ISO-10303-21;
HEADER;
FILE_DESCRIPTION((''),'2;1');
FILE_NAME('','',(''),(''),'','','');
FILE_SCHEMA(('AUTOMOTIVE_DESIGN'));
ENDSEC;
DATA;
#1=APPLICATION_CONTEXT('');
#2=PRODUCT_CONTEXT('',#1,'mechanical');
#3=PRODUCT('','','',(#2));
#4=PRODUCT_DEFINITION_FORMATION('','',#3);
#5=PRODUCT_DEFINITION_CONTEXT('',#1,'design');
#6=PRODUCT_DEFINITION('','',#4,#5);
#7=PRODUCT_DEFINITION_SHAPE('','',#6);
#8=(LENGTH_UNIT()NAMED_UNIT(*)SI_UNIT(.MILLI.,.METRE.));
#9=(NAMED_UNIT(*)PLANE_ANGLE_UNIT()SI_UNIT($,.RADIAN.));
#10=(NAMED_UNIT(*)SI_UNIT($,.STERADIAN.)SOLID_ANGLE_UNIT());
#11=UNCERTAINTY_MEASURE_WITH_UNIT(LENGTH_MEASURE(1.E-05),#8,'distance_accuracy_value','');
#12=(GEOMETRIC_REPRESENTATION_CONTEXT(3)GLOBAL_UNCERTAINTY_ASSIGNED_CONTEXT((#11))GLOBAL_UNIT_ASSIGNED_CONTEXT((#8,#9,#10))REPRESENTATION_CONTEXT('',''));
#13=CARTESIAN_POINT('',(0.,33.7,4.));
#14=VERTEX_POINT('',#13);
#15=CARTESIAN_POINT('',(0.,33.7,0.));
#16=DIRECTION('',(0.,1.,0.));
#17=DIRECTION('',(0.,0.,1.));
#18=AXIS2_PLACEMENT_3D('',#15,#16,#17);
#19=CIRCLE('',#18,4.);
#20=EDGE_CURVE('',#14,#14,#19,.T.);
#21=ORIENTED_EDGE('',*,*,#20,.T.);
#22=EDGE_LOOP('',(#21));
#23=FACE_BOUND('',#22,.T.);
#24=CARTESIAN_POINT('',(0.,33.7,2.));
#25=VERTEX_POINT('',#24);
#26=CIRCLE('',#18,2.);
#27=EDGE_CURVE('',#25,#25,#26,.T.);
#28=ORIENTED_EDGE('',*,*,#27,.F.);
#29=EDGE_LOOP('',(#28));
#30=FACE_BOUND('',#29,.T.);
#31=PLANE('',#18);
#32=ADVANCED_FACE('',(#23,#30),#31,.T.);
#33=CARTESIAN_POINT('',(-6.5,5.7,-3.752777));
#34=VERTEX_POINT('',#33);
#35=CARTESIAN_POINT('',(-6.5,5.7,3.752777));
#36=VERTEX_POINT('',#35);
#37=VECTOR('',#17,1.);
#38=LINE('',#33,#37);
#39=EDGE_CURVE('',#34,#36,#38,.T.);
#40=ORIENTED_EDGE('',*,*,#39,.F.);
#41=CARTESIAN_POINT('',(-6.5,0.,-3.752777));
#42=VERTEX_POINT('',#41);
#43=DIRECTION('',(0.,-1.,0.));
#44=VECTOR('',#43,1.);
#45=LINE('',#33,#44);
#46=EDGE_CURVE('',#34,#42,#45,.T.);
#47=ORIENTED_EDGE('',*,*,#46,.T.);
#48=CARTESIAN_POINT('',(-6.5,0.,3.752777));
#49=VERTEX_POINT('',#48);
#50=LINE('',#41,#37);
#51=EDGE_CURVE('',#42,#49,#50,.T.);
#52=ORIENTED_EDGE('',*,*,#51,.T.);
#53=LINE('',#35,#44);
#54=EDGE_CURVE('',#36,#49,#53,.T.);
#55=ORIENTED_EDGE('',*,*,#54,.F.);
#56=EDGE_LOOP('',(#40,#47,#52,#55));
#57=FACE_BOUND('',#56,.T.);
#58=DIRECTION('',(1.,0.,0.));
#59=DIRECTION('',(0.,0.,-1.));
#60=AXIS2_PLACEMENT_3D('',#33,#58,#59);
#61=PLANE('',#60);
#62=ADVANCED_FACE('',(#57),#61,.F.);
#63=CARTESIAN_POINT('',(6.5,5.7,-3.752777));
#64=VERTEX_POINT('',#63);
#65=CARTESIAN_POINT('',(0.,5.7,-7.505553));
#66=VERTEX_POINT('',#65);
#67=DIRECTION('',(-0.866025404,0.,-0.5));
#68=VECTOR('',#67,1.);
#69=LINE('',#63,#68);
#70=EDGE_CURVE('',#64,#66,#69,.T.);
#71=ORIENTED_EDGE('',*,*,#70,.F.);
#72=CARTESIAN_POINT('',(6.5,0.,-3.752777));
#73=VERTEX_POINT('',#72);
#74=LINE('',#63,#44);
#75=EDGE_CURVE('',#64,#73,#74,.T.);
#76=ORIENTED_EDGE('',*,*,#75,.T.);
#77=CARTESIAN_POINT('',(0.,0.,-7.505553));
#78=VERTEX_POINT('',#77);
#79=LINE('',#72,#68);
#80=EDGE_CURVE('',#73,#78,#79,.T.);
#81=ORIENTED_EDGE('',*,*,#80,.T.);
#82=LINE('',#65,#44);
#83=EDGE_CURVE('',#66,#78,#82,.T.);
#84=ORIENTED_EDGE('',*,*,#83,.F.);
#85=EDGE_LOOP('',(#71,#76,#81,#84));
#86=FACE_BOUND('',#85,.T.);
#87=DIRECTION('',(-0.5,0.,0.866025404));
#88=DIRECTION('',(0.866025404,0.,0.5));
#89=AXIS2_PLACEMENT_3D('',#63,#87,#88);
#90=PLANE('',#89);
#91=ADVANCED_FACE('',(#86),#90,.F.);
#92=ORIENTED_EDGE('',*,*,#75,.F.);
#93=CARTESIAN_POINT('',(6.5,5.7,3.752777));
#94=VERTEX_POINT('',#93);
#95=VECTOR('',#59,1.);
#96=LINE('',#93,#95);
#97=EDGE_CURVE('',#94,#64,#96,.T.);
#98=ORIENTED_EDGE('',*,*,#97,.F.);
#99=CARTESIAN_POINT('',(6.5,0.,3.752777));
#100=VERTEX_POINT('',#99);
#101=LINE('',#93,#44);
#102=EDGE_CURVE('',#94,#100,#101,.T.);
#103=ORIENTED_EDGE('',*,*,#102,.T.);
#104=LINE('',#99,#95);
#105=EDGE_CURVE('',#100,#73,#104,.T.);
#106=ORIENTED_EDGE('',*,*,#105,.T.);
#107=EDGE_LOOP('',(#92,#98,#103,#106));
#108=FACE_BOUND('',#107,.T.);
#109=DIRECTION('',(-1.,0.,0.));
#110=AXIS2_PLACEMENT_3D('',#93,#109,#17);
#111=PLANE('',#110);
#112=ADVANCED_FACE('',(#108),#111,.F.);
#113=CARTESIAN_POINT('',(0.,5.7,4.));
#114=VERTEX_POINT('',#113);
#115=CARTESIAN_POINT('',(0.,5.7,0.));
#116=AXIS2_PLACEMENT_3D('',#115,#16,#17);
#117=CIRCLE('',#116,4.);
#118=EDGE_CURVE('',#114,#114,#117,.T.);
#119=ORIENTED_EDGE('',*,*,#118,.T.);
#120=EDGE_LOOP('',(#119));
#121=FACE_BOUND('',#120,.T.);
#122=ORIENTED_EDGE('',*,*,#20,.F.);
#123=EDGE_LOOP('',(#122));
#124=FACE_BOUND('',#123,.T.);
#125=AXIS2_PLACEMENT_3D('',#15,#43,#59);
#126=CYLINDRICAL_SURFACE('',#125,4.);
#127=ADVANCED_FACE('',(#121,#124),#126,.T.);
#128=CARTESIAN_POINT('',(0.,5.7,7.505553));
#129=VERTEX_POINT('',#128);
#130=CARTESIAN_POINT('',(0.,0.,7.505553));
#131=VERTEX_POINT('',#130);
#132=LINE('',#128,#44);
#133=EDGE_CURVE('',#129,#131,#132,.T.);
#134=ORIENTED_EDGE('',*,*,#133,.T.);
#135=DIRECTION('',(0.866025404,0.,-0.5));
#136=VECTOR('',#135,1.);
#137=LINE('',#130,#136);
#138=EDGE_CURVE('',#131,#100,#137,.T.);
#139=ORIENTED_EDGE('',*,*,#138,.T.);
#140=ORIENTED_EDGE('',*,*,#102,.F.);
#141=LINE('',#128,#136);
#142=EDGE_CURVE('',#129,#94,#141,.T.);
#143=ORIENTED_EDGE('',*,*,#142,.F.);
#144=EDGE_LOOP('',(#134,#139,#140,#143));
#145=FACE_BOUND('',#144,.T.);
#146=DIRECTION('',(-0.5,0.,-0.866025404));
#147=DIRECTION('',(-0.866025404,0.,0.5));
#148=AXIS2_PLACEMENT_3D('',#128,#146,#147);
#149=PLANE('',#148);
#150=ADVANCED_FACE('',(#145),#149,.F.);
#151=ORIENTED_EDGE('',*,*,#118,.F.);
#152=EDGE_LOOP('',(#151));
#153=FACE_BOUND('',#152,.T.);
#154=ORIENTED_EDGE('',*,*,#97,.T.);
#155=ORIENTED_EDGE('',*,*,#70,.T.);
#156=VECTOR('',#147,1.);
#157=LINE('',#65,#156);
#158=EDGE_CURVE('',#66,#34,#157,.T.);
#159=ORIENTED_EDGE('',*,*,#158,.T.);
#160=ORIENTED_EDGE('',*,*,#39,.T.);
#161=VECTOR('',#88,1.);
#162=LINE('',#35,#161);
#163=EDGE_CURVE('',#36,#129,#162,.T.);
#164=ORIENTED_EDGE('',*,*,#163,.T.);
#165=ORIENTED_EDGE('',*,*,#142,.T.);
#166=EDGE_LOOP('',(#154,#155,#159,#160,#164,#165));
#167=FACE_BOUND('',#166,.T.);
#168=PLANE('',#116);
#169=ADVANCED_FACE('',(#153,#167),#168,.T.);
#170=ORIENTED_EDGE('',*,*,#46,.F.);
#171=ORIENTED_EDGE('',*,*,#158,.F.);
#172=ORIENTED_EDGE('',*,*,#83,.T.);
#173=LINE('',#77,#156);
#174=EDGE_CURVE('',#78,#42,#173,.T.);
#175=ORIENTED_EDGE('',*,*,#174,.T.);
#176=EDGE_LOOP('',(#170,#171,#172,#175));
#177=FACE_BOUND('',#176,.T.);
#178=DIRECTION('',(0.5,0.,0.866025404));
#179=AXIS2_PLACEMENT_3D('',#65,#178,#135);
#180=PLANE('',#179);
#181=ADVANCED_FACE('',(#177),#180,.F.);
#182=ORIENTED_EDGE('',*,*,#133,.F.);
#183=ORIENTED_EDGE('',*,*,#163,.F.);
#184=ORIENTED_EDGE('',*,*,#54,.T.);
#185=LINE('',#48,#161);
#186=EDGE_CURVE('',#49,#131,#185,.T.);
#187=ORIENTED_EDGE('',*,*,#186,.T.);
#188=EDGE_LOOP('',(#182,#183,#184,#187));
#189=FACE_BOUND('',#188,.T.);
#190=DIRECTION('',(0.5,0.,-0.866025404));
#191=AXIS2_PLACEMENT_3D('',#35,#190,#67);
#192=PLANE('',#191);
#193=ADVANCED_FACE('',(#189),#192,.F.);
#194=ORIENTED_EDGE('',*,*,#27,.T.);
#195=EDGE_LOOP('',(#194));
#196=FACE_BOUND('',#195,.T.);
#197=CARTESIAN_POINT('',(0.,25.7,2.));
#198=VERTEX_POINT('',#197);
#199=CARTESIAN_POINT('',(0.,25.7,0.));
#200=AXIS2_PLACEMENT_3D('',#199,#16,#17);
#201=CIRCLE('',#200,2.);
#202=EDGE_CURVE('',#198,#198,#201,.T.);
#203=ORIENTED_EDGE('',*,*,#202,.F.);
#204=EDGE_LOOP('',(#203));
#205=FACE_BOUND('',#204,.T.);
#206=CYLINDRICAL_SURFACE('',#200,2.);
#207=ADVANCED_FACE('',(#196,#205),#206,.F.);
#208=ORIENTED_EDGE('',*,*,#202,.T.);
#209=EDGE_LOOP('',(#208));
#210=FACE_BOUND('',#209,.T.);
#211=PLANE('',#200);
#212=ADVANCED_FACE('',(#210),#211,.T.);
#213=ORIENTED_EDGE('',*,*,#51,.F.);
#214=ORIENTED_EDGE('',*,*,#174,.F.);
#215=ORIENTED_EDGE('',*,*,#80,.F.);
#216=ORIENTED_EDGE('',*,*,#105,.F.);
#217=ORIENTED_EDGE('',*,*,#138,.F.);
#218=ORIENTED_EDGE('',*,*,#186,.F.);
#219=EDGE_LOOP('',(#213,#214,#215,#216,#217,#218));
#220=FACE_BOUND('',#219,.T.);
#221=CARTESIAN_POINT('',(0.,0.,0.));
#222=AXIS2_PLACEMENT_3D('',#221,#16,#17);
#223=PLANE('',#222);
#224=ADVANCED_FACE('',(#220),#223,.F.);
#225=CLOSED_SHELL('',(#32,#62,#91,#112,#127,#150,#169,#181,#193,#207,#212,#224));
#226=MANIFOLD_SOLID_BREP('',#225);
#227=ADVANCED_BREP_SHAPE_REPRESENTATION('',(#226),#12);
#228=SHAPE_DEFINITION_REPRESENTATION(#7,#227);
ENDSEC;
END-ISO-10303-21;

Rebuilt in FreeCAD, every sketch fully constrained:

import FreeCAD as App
import Part
import Sketcher

V = App.Vector
Q = App.Units.Quantity


def add_polygon(sketch, points):
    """Adds a closed chain of lines whose ends are joined by coincident constraints."""
    first, n = sketch.GeometryCount, len(points)
    for a, b in zip(points, points[1:] + points[:1]):
        sketch.addGeometry(Part.LineSegment(App.Vector(*a, 0), App.Vector(*b, 0)), False)
    for i in range(n):
        sketch.addConstraint(Sketcher.Constraint("Coincident", first + i, 2, first + (i + 1) % n, 1))

doc = App.newDocument("Part")
body = doc.addObject("PartDesign::Body", "Body")

sketch1 = body.newObject("Sketcher::SketchObject", "Sketch")
sketch1.AttachmentSupport = (doc.getObject("XZ_Plane"), [""])
sketch1.MapMode = "FlatFace"
add_polygon(sketch1, [(0, 8), (6, 4), (6, -4), (0, -8), (-6, -4), (-6, 4)])
sketch1.addConstraint(Sketcher.Constraint("Vertical", 1))
sketch1.addConstraint(Sketcher.Constraint("Vertical", 4))
sketch1.addConstraint(Sketcher.Constraint("Symmetric", 0, 2, 3, 2, -1, 1))
sketch1.addConstraint(Sketcher.Constraint("Symmetric", 2, 2, 5, 2, -1, 1))
sketch1.addConstraint(Sketcher.Constraint("PointOnObject", 2, 2, -2))
sketch1.addConstraint(Sketcher.Constraint("Parallel", 2, 5))
sketch1.addConstraint(Sketcher.Constraint("Horizontal", 1, 2, 3, 2))
sketch1.addConstraint(Sketcher.Constraint("Angle", 0, Q("-30 deg")))
sketch1.addConstraint(Sketcher.Constraint("DistanceX", 3, 2, 1, 2, 13.0))
sketch1.addConstraint(Sketcher.Constraint("DistanceY", 1, 2, 1, 1, 7.505554))
pad1 = body.newObject("PartDesign::Pad", "Pad")
pad1.Profile = sketch1
pad1.Length = 5.7
pad1.Reversed = True

sketch2 = body.newObject("Sketcher::SketchObject", "Sketch001")
sketch2.AttachmentSupport = (doc.getObject("XZ_Plane"), [""])
sketch2.MapMode = "FlatFace"
sketch2.AttachmentOffset = App.Placement(V(0, 0, -5.7), App.Rotation())
sketch2.addGeometry(Part.Circle(V(0, 0, 0), V(0, 0, 1), 4), False)
sketch2.addConstraint(Sketcher.Constraint("Coincident", 0, 3, -1, 1))
sketch2.addConstraint(Sketcher.Constraint("Diameter", 0, 8.0))
pad2 = body.newObject("PartDesign::Pad", "Pad001")
pad2.Profile = sketch2
pad2.Length = 28
pad2.Reversed = True

sketch3 = body.newObject("Sketcher::SketchObject", "Sketch002")
sketch3.AttachmentSupport = (doc.getObject("XZ_Plane"), [""])
sketch3.MapMode = "FlatFace"
sketch3.AttachmentOffset = App.Placement(V(0, 0, -33.7), App.Rotation())
sketch3.addGeometry(Part.Circle(V(0, 0, 0), V(0, 0, 1), 2), False)
sketch3.addConstraint(Sketcher.Constraint("Coincident", 0, 3, -1, 1))
sketch3.addConstraint(Sketcher.Constraint("Diameter", 0, 4.0))
pocket1 = body.newObject("PartDesign::Pocket", "Pocket")
pocket1.Profile = sketch3
pocket1.Length = 8
pocket1.Reversed = True

doc.recompute()
